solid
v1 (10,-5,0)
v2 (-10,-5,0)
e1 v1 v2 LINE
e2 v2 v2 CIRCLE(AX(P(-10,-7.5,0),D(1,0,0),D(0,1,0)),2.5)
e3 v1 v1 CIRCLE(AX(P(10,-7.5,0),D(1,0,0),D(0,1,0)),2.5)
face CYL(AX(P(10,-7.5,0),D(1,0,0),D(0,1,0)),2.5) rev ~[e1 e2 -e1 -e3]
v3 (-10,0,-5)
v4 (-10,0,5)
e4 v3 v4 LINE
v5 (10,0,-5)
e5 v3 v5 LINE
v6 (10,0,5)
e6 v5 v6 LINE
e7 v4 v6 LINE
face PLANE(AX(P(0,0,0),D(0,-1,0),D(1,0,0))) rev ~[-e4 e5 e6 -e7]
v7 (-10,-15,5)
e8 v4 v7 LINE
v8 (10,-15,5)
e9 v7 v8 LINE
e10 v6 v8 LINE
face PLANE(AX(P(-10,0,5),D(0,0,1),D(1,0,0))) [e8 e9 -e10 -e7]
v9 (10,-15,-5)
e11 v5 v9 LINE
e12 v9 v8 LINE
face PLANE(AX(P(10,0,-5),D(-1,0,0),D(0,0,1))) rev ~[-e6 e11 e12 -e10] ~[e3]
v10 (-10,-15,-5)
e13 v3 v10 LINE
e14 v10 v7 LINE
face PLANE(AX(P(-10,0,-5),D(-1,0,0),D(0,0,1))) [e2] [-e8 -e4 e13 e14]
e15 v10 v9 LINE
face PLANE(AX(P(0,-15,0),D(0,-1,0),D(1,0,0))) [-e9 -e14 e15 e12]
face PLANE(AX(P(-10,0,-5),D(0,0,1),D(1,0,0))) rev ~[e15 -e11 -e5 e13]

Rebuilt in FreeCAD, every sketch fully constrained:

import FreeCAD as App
import Part
import Sketcher


def add_polygon(sketch, points):
    """Adds a closed chain of lines whose ends are joined by coincident constraints."""
    first, n = sketch.GeometryCount, len(points)
    for a, b in zip(points, points[1:] + points[:1]):
        sketch.addGeometry(Part.LineSegment(App.Vector(*a, 0), App.Vector(*b, 0)), False)
    for i in range(n):
        sketch.addConstraint(Sketcher.Constraint("Coincident", first + i, 2, first + (i + 1) % n, 1))

doc = App.newDocument("Part")
params = doc.addObject("Spreadsheet::Sheet", "Params")
for row, (alias, value) in enumerate([
    ("sketch1_width", "20 mm"),
    ("sketch1_height", "10 mm"),
    ("pad1_length", "15 mm"),
    ("sketch2_diameter", "5 mm"),
], start=1):
    params.set(f"A{row}", alias)
    params.set(f"B{row}", "=" + value)
    params.setAlias(f"B{row}", alias)

body = doc.addObject("PartDesign::Body", "Body")

sketch1 = doc.addObject("Sketcher::SketchObject", "Sketch")
body.addObject(sketch1)
sketch1.AttachmentSupport = (doc.XZ_Plane, [""])
sketch1.MapMode = "FlatFace"
add_polygon(sketch1, [(-10, 5), (-10, -5), (10, -5), (10, 5)])
sketch1.addConstraint([
    Sketcher.Constraint("Vertical", 0),
    Sketcher.Constraint("Horizontal", 1),
    Sketcher.Constraint("Vertical", 2),
    Sketcher.Constraint("Horizontal", 3),
    Sketcher.Constraint("Symmetric", 0, 2, 2, 2, -1, 1),
    Sketcher.Constraint("DistanceX", 1, 1, 1, 2, 20.0),
    Sketcher.Constraint("DistanceY", 0, 2, 0, 1, 10.0),
])
sketch1.setExpression("Constraints[9]", "Params.sketch1_width")
sketch1.setExpression("Constraints[10]", "Params.sketch1_height")
pad1 = doc.addObject("PartDesign::Pad", "Pad")
body.addObject(pad1)
pad1.Profile = sketch1
pad1.setExpression("Length", "Params.pad1_length")

sketch2 = doc.addObject("Sketcher::SketchObject", "Sketch001")
body.addObject(sketch2)
sketch2.AttachmentSupport = (doc.YZ_Plane, [""])
sketch2.MapMode = "FlatFace"
sketch2.AttachmentOffset = App.Placement(App.Vector(0, 0, 10), App.Rotation())
sketch2.addGeometry(Part.Circle(App.Vector(-7.5, 0, 0), App.Vector(0, 0, 1), 2.5), False)
sketch2.addConstraint([
    Sketcher.Constraint("PointOnObject", 0, 3, -1),
    Sketcher.Constraint("Diameter", 0, 5.0),
    Sketcher.Constraint("DistanceX", 0, 3, -1, 1, 7.5),
])
sketch2.setExpression("Constraints[1]", "Params.sketch2_diameter")
pocket1 = doc.addObject("PartDesign::Pocket", "Pocket")
body.addObject(pocket1)
pocket1.Profile = sketch2
pocket1.Type = "ThroughAll"

doc.recompute()
